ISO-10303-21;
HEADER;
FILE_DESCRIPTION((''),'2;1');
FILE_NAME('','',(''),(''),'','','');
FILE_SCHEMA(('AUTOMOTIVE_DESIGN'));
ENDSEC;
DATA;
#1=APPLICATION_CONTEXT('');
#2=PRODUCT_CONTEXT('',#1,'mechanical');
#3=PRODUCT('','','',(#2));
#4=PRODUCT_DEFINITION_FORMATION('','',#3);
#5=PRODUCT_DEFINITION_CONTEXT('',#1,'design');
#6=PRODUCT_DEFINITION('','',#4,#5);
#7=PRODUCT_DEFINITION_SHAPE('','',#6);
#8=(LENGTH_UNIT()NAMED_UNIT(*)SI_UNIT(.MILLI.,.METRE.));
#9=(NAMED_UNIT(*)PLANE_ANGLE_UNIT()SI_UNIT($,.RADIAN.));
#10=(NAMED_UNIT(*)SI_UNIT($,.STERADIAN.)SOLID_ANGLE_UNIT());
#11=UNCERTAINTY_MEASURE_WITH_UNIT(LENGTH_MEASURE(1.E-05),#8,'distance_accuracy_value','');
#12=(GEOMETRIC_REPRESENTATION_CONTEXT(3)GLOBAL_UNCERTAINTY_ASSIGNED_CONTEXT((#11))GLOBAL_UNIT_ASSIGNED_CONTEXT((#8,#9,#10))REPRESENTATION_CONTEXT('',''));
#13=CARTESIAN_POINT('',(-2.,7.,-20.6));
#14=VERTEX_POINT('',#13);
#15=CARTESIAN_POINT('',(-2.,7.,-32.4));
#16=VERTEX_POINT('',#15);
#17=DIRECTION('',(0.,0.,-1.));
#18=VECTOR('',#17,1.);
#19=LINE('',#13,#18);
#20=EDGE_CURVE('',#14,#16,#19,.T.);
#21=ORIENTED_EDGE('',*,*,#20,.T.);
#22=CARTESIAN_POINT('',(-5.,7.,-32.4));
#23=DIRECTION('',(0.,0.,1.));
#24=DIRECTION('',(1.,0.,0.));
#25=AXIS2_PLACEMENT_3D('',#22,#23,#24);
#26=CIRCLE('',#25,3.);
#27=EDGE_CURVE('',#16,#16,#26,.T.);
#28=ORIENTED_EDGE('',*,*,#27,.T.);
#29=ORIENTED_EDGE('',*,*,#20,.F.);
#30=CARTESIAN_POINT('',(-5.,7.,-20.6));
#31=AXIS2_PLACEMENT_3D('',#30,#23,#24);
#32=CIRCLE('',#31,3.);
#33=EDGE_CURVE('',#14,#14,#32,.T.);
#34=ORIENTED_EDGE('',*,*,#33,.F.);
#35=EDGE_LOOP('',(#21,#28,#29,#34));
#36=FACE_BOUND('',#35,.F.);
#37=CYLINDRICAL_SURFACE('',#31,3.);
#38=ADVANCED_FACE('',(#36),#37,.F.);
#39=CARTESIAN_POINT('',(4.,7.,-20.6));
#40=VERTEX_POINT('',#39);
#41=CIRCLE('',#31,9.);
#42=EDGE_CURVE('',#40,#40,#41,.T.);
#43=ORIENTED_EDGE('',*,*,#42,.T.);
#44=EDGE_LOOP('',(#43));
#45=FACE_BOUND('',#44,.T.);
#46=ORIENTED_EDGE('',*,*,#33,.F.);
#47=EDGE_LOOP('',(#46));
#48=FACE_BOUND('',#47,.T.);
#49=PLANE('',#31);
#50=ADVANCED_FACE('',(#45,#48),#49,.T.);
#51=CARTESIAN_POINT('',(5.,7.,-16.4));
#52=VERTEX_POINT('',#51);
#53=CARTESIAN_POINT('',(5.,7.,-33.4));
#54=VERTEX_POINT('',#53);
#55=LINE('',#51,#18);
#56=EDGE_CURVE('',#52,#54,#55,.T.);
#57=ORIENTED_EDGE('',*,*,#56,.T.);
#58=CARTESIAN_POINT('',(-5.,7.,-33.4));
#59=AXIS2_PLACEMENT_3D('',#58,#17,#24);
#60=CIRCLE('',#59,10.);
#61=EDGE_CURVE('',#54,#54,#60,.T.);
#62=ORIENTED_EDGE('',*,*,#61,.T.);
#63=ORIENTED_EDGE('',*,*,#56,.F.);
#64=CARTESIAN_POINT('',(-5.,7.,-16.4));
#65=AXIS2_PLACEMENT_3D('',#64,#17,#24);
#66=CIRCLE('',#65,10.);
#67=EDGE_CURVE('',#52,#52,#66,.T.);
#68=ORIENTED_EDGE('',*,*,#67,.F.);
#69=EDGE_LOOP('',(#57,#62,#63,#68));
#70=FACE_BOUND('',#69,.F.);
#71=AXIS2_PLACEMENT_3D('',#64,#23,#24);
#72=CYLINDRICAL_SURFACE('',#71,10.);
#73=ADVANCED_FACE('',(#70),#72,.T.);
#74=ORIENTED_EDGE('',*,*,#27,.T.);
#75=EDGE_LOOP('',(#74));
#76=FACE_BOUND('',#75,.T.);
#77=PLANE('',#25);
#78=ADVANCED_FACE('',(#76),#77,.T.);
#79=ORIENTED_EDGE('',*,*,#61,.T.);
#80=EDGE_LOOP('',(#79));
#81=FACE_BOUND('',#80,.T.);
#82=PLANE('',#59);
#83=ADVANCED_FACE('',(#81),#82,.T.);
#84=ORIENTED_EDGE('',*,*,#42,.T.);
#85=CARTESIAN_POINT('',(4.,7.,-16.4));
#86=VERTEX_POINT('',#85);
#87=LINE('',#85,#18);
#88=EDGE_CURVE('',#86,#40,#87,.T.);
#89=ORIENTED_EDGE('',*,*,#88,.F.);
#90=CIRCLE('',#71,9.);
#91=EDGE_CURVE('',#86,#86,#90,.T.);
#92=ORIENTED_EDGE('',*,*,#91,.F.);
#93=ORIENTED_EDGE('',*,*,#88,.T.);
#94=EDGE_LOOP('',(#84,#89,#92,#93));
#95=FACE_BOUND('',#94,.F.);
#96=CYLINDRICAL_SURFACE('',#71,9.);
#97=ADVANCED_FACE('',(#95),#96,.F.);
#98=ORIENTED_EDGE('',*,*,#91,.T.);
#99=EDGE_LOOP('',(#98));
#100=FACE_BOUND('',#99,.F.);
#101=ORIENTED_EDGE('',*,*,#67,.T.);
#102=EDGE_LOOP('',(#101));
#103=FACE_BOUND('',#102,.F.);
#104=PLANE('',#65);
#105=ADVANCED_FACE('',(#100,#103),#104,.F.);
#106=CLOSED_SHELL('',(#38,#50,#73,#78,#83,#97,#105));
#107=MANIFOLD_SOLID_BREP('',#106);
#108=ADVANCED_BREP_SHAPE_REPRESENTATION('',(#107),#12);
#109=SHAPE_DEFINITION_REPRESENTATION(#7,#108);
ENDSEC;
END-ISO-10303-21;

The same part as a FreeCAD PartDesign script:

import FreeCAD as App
import Part
import Sketcher
from FreeCAD import Vector

doc = App.newDocument("Part")
params = doc.addObject("Spreadsheet::Sheet", "Params")
for row, (alias, value) in enumerate([
    ("sketch1_diameter", "20 mm"),
    ("pad1_length", "17 mm"),
    ("sketch2_diameter", "18 mm"),
    ("pocket1_length", "4.2 mm"),
    ("sketch3_diameter", "6 mm"),
    ("pocket2_length", "11.8 mm"),
], start=1):
    params.set(f"A{row}", alias)
    params.set(f"B{row}", "=" + value)
    params.setAlias(f"B{row}", alias)

body = doc.addObject("PartDesign::Body", "Body")

# Sketch on XY plane
sketch1 = body.newObject("Sketcher::SketchObject", "Sketch")
sketch1.AttachmentSupport = (doc.getObject("XY_Plane"), [""])
sketch1.MapMode = "FlatFace"
sketch1.addGeometry(Part.Circle(Vector(0, 0, 0), Vector(0, 0, 1), 10), False)
sketch1.addConstraint(Sketcher.Constraint("Coincident", 0, 3, -1, 1))
sketch1.addConstraint(Sketcher.Constraint("Diameter", 0, 20.0))
sketch1.setExpression("Constraints[1]", "Params.sketch1_diameter")
pad1 = body.newObject("PartDesign::Pad", "Pad")
pad1.Profile = sketch1
pad1.setExpression("Length", "Params.pad1_length")

# Sketch on XY plane
sketch2 = body.newObject("Sketcher::SketchObject", "Sketch001")
sketch2.AttachmentSupport = (doc.getObject("XY_Plane"), [""])
sketch2.MapMode = "FlatFace"
sketch2.addGeometry(Part.Circle(Vector(0, 0, 0), Vector(0, 0, 1), 9), False)
sketch2.addConstraint(Sketcher.Constraint("Coincident", 0, 3, -1, 1))
sketch2.addConstraint(Sketcher.Constraint("Diameter", 0, 18.0))
sketch2.setExpression("Constraints[1]", "Params.sketch2_diameter")
pocket1 = body.newObject("PartDesign::Pocket", "Pocket")
pocket1.Profile = sketch2
pocket1.setExpression("Length", "Params.pocket1_length")
pocket1.Reversed = True

# Sketch on XY plane
sketch3 = body.newObject("Sketcher::SketchObject", "Sketch002")
sketch3.AttachmentSupport = (doc.getObject("XY_Plane"), [""])
sketch3.MapMode = "FlatFace"
sketch3.AttachmentOffset = App.Placement(Vector(0, 0, 4.2), App.Rotation())
sketch3.addGeometry(Part.Circle(Vector(0, 0, 0), Vector(0, 0, 1), 3), False)
sketch3.addConstraint(Sketcher.Constraint("Coincident", 0, 3, -1, 1))
sketch3.addConstraint(Sketcher.Constraint("Diameter", 0, 6.0))
sketch3.setExpression("Constraints[1]", "Params.sketch3_diameter")
pocket2 = body.newObject("PartDesign::Pocket", "Pocket001")
pocket2.Profile = sketch3
pocket2.setExpression("Length", "Params.pocket2_length")
pocket2.Reversed = True
body2 = doc.addObject("PartDesign::Body", "Body001")
doc.recompute()

body.Placement = App.Placement(Vector(-5, 7, -16.4), App.Rotation(Vector(1, 0, 0), 180))
boolean = body2.newObject("PartDesign::Boolean", "Boolean")
boolean.Type = "Fuse"
boolean.addObjects([body])

doc.recompute()
